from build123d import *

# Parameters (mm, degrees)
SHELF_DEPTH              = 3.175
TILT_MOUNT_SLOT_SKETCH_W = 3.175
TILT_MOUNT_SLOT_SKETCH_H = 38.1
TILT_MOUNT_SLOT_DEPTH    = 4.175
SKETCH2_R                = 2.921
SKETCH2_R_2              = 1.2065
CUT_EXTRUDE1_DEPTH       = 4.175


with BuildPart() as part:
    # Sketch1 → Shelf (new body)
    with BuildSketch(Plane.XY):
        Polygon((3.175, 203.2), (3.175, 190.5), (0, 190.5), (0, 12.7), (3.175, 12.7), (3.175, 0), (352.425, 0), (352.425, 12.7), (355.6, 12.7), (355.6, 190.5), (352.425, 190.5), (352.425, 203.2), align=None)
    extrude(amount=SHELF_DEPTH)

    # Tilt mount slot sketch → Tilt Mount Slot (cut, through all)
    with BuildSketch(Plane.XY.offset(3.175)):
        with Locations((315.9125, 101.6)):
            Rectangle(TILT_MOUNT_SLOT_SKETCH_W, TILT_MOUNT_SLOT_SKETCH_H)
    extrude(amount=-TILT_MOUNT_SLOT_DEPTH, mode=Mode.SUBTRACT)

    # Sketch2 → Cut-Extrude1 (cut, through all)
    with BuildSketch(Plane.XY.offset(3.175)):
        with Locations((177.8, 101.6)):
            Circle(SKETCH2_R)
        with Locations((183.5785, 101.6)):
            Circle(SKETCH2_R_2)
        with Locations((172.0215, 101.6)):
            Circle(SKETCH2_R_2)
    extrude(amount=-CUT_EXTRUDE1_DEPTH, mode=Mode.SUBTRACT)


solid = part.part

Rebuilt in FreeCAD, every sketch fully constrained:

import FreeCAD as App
import Part
import Sketcher
Q = App.Units.Quantity

doc = App.newDocument("Part")
body = doc.addObject("PartDesign::Body", "Body")

# Sketch on XY plane
sketch1 = doc.addObject("Sketcher::SketchObject", "Sketch")
body.addObject(sketch1)
sketch1.AttachmentSupport = (doc.XY_Plane, [""])
sketch1.MapMode = "FlatFace"
sketch1.addGeometry([
    Part.LineSegment(App.Vector(3.2, 203.2, 0), App.Vector(3.2, 190.5, 0)),  # 0
    Part.LineSegment(App.Vector(3.2, 190.5, 0), App.Vector(0, 190.5, 0)),  # 1
    Part.LineSegment(App.Vector(0, 190.5, 0), App.Vector(0, 12.7, 0)),  # 2
    Part.LineSegment(App.Vector(0, 12.7, 0), App.Vector(3.2, 12.7, 0)),  # 3
    Part.LineSegment(App.Vector(3.2, 12.7, 0), App.Vector(3.2, 0, 0)),  # 4
    Part.LineSegment(App.Vector(3.2, 0, 0), App.Vector(352.4, 0, 0)),  # 5
    Part.LineSegment(App.Vector(352.4, 0, 0), App.Vector(352.4, 12.7, 0)),  # 6
    Part.LineSegment(App.Vector(352.4, 12.7, 0), App.Vector(355.6, 12.7, 0)),  # 7
    Part.LineSegment(App.Vector(355.6, 12.7, 0), App.Vector(355.6, 190.5, 0)),  # 8
    Part.LineSegment(App.Vector(355.6, 190.5, 0), App.Vector(352.4, 190.5, 0)),  # 9
    Part.LineSegment(App.Vector(352.4, 190.5, 0), App.Vector(352.4, 203.2, 0)),  # 10
    Part.LineSegment(App.Vector(352.4, 203.2, 0), App.Vector(3.2, 203.2, 0)),  # 11
], False)
sketch1.addConstraint([
    Sketcher.Constraint("Coincident", 0, 2, 1, 1),
    Sketcher.Constraint("Coincident", 1, 2, 2, 1),
    Sketcher.Constraint("Coincident", 2, 2, 3, 1),
    Sketcher.Constraint("Coincident", 3, 2, 4, 1),
    Sketcher.Constraint("Coincident", 4, 2, 5, 1),
    Sketcher.Constraint("Coincident", 5, 2, 6, 1),
    Sketcher.Constraint("Coincident", 6, 2, 7, 1),
    Sketcher.Constraint("Coincident", 7, 2, 8, 1),
    Sketcher.Constraint("Coincident", 8, 2, 9, 1),
    Sketcher.Constraint("Coincident", 9, 2, 10, 1),
    Sketcher.Constraint("Coincident", 10, 2, 11, 1),
    Sketcher.Constraint("Coincident", 11, 2, 0, 1),
    Sketcher.Constraint("Vertical", 0),
    Sketcher.Constraint("Horizontal", 1),
    Sketcher.Constraint("Vertical", 2),
    Sketcher.Constraint("Horizontal", 3),
    Sketcher.Constraint("Vertical", 4),
    Sketcher.Constraint("Horizontal", 5),
    Sketcher.Constraint("Vertical", 6),
    Sketcher.Constraint("Horizontal", 7),
    Sketcher.Constraint("Vertical", 8),
    Sketcher.Constraint("Horizontal", 9),
    Sketcher.Constraint("Vertical", 10),
    Sketcher.Constraint("Horizontal", 11),
    Sketcher.Constraint("PointOnObject", 1, 2, -2),
    Sketcher.Constraint("PointOnObject", 4, 2, -1),
    Sketcher.Constraint("Horizontal", 3, 2, 6, 2),
    Sketcher.Constraint("Horizontal", 1, 2, 8, 2),
    Sketcher.Constraint("Vertical", 0, 2, 3, 2),
    Sketcher.Constraint("Vertical", 6, 2, 9, 2),
    Sketcher.Constraint("Equal", 3, 7),
    Sketcher.Constraint("Equal", 0, 4),
    Sketcher.Constraint("DistanceY", 2, 2, 2, 1, Q("7 in")),
    Sketcher.Constraint("DistanceY", 0, 2, 0, 1, Q("0.5 in")),
    Sketcher.Constraint("DistanceX", -1, 1, 7, 2, Q("14 in")),
    Sketcher.Constraint("DistanceX", 5, 1, 5, 2, Q("13.75 in")),
])
pad1 = doc.addObject("PartDesign::Pad", "Pad")
body.addObject(pad1)
pad1.Profile = sketch1
pad1.Length = Q("0.125 in")

# Sketch on XY plane
sketch2 = doc.addObject("Sketcher::SketchObject", "Sketch001")
body.addObject(sketch2)
sketch2.AttachmentSupport = (doc.XY_Plane, [""])
sketch2.MapMode = "FlatFace"
sketch2.AttachmentOffset = App.Placement(App.Vector(0, 0, 0.125 * 25.4), App.Rotation())
sketch2.addGeometry([
    Part.LineSegment(App.Vector(314.3, 120.7, 0), App.Vector(314.3, 82.5, 0)),
    Part.LineSegment(App.Vector(314.3, 82.5, 0), App.Vector(317.5, 82.5, 0)),
    Part.LineSegment(App.Vector(317.5, 82.5, 0), App.Vector(317.5, 120.7, 0)),
    Part.LineSegment(App.Vector(317.5, 120.7, 0), App.Vector(314.3, 120.7, 0)),
], False)
sketch2.addConstraint([
    Sketcher.Constraint("Coincident", 0, 2, 1, 1),
    Sketcher.Constraint("Coincident", 1, 2, 2, 1),
    Sketcher.Constraint("Coincident", 2, 2, 3, 1),
    Sketcher.Constraint("Coincident", 3, 2, 0, 1),
    Sketcher.Constraint("Vertical", 0),
    Sketcher.Constraint("Horizontal", 1),
    Sketcher.Constraint("Vertical", 2),
    Sketcher.Constraint("Horizontal", 3),
    Sketcher.Constraint("DistanceY", 0, 2, 0, 1, Q("1.5 in")),
    Sketcher.Constraint("DistanceX", -1, 1, 1, 2, Q("12.5 in")),
    Sketcher.Constraint("DistanceX", 1, 1, 1, 2, Q("0.125 in")),
    Sketcher.Constraint("DistanceY", -1, 1, 0, 2, Q("3.25 in")),
])
pocket1 = doc.addObject("PartDesign::Pocket", "Pocket")
body.addObject(pocket1)
pocket1.Profile = sketch2
pocket1.Type = "ThroughAll"

# Sketch on XY plane
sketch3 = doc.addObject("Sketcher::SketchObject", "Sketch002")
body.addObject(sketch3)
sketch3.AttachmentSupport = (doc.XY_Plane, [""])
sketch3.MapMode = "FlatFace"
sketch3.AttachmentOffset = App.Placement(App.Vector(0, 0, 0.125 * 25.4), App.Rotation())
sketch3.addGeometry([
    Part.Circle(App.Vector(177.8, 101.6, 0), App.Vector(0, 0, 1), 2.9),
    Part.Circle(App.Vector(183.6, 101.6, 0), App.Vector(0, 0, 1), 1.2),
    Part.Circle(App.Vector(172, 101.6, 0), App.Vector(0, 0, 1), 1.2),
], False)
sketch3.addConstraint([
    Sketcher.Constraint("Equal", 1, 2),
    Sketcher.Constraint("Horizontal", 0, 3, 1, 3),
    Sketcher.Constraint("Horizontal", 1, 3, 2, 3),
    Sketcher.Constraint("Diameter", 0, Q("0.23 in")),
    Sketcher.Constraint("Diameter", 1, Q("0.095 in")),
    Sketcher.Constraint("DistanceX", -1, 1, 0, 3, Q("7 in")),
    Sketcher.Constraint("DistanceY", -1, 1, 0, 3, Q("4 in")),
    Sketcher.Constraint("DistanceX", 2, 3, 1, 3, Q("0.455 in")),
    Sketcher.Constraint("DistanceX", -1, 1, 1, 3, Q("7.2275 in")),
])
pocket2 = doc.addObject("PartDesign::Pocket", "Pocket001")
body.addObject(pocket2)
pocket2.Profile = sketch3
pocket2.Type = "ThroughAll"

doc.recompute()
